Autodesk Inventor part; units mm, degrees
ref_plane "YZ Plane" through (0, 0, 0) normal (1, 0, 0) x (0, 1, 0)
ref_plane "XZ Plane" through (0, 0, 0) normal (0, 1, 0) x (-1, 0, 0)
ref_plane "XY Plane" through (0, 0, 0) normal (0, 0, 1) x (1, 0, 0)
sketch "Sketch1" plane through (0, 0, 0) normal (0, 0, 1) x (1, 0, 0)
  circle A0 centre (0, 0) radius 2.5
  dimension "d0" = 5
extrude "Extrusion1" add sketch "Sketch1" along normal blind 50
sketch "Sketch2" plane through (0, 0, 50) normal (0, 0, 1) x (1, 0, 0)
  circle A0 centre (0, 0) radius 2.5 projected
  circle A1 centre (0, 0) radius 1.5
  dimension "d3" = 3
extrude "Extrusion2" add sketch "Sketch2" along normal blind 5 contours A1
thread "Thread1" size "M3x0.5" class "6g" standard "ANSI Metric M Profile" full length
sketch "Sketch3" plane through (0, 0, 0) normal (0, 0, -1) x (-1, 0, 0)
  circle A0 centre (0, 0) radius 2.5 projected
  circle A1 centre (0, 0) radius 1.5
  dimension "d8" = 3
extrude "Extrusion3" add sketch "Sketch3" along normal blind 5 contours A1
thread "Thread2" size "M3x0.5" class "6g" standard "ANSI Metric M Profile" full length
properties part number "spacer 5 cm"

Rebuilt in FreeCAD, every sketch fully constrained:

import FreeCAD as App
import Part
import Sketcher
from FreeCAD import Vector

doc = App.newDocument("Part")
params = doc.addObject("Spreadsheet::Sheet", "Params")
for row, (alias, value) in enumerate([
    ("sketch1_diameter", "5 mm"),
    ("pad1_length", "50 mm"),
    ("sketch2_diameter", "3 mm"),
    ("pad2_length", "5 mm"),
    ("sketch3_diameter", "3 mm"),
    ("pad3_length", "5 mm"),
], start=1):
    params.set(f"A{row}", alias)
    params.set(f"B{row}", "=" + value)
    params.setAlias(f"B{row}", alias)

body = doc.addObject("PartDesign::Body", "Body")

# Sketch on XY plane
sketch1 = body.newObject("Sketcher::SketchObject", "Sketch")
sketch1.AttachmentSupport = (doc.getObject("XY_Plane"), [""])
sketch1.MapMode = "FlatFace"
sketch1.addGeometry(Part.Circle(Vector(0, 0, 0), Vector(0, 0, 1), 2.5), False)
sketch1.addConstraint([
    Sketcher.Constraint("Coincident", 0, 3, -1, 1),
    Sketcher.Constraint("Diameter", 0, 5.0),
])
sketch1.setExpression("Constraints[1]", "Params.sketch1_diameter")
pad1 = body.newObject("PartDesign::Pad", "Pad")
pad1.Profile = sketch1
pad1.setExpression("Length", "Params.pad1_length")

# Sketch on XY plane
sketch2 = body.newObject("Sketcher::SketchObject", "Sketch001")
sketch2.AttachmentSupport = (doc.getObject("XY_Plane"), [""])
sketch2.MapMode = "FlatFace"
sketch2.AttachmentOffset = App.Placement(Vector(0, 0, 50), App.Rotation())
sketch2.addGeometry(Part.Circle(Vector(0, 0, 0), Vector(0, 0, 1), 1.5), False)
sketch2.addConstraint([
    Sketcher.Constraint("Coincident", 0, 3, -1, 1),
    Sketcher.Constraint("Diameter", 0, 3.0),
])
sketch2.setExpression("Constraints[1]", "Params.sketch2_diameter")
pad2 = body.newObject("PartDesign::Pad", "Pad001")
pad2.Profile = sketch2
pad2.setExpression("Length", "Params.pad2_length")

# Sketch on XY plane
sketch3 = body.newObject("Sketcher::SketchObject", "Sketch002")
sketch3.AttachmentSupport = (doc.getObject("XY_Plane"), [""])
sketch3.MapMode = "FlatFace"
sketch3.addGeometry(Part.Circle(Vector(0, 0, 0), Vector(0, 0, 1), 1.5), False)
sketch3.addConstraint([
    Sketcher.Constraint("Coincident", 0, 3, -1, 1),
    Sketcher.Constraint("Diameter", 0, 3.0),
])
sketch3.setExpression("Constraints[1]", "Params.sketch3_diameter")
pad3 = body.newObject("PartDesign::Pad", "Pad002")
pad3.Profile = sketch3
pad3.setExpression("Length", "Params.pad3_length")
pad3.Reversed = True

doc.recompute()
